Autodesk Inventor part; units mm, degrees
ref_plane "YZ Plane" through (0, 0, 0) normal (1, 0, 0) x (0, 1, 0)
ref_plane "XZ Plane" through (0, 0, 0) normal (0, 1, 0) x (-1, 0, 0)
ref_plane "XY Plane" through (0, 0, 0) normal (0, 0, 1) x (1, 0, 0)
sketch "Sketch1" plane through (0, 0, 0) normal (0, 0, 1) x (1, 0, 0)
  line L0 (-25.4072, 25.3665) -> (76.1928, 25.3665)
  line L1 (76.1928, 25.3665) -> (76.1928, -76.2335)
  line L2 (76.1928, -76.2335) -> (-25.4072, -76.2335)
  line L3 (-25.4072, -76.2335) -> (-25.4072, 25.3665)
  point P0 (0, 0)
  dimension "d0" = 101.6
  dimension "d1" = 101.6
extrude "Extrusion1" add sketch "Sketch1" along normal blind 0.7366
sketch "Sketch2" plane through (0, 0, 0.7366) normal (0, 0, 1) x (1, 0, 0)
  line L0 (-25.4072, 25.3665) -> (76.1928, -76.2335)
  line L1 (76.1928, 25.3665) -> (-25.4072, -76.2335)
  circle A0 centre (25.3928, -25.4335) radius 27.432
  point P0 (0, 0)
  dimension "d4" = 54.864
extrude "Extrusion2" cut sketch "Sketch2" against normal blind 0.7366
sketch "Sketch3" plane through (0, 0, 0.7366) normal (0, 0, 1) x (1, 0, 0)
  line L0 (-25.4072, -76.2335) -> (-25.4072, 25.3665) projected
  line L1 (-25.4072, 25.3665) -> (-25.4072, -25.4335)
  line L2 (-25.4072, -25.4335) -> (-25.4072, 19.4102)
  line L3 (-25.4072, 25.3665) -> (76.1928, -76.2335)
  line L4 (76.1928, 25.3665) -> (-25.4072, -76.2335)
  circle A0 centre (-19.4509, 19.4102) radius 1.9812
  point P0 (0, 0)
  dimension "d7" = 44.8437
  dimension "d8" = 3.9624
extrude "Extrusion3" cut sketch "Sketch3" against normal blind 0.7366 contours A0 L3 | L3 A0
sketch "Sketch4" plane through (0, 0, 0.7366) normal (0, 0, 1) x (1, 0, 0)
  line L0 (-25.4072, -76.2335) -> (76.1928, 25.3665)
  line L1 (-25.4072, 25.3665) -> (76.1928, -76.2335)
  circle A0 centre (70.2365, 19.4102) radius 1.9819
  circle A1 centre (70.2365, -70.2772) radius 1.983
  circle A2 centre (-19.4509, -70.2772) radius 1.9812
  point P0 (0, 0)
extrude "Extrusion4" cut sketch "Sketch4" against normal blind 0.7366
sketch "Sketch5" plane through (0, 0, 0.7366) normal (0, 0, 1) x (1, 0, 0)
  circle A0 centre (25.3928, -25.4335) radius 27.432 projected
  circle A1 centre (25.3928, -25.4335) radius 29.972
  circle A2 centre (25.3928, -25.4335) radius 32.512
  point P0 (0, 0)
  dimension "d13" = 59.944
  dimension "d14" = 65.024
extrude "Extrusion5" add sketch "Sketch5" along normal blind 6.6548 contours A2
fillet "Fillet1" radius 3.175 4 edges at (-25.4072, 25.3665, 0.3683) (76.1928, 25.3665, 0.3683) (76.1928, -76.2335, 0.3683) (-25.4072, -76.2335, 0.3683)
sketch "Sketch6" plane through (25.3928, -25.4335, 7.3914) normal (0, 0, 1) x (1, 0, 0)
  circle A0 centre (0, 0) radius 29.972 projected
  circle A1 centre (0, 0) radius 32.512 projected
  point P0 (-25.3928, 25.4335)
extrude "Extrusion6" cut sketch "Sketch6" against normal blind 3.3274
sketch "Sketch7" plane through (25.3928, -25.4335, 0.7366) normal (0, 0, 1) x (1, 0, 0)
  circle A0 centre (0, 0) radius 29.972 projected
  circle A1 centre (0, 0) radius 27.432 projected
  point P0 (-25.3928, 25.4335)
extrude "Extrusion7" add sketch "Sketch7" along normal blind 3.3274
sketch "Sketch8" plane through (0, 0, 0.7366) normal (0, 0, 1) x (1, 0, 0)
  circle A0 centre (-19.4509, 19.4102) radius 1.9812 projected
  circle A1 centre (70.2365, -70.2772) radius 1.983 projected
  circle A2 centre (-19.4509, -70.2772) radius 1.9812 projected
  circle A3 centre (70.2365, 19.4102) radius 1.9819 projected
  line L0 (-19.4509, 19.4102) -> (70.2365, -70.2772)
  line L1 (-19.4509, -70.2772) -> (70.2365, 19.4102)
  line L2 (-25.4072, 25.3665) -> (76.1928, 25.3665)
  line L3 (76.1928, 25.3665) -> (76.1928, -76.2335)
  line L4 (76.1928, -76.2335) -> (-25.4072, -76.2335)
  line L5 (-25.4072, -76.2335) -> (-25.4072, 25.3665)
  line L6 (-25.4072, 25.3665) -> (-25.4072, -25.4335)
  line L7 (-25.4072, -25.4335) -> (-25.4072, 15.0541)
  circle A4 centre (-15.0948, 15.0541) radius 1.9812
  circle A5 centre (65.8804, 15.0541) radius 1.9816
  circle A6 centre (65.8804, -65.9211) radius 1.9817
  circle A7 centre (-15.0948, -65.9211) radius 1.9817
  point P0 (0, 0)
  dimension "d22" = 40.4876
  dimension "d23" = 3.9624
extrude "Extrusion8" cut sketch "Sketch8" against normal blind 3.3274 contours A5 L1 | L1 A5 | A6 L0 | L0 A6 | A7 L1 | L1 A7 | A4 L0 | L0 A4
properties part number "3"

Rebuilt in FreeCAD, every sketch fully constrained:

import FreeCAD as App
import Part
import Sketcher
Q = App.Units.Quantity


def edges_at(feature, points):
    """Names of the edges that pass closest to the given points."""
    edges = feature.Shape.Edges
    near = lambda p: min(range(len(edges)), key=lambda i: edges[i].distToShape(Part.Vertex(*p))[0])
    return sorted({f"Edge{near(p) + 1}" for p in points})


def add_polygon(sketch, points):
    """Adds a closed chain of lines whose ends are joined by coincident constraints."""
    first, n = sketch.GeometryCount, len(points)
    for a, b in zip(points, points[1:] + points[:1]):
        sketch.addGeometry(Part.LineSegment(App.Vector(*a, 0), App.Vector(*b, 0)), False)
    for i in range(n):
        sketch.addConstraint(Sketcher.Constraint("Coincident", first + i, 2, first + (i + 1) % n, 1))

doc = App.newDocument("Part")
body = doc.addObject("PartDesign::Body", "Body")

sketch1 = body.newObject("Sketcher::SketchObject", "Sketch")
sketch1.AttachmentSupport = (doc.getObject("XY_Plane"), [""])
sketch1.MapMode = "FlatFace"
add_polygon(sketch1, [(76, 25), (-25, 25), (-25, -76), (76, -76)])
sketch1.addConstraint(Sketcher.Constraint("Horizontal", 0))
sketch1.addConstraint(Sketcher.Constraint("Vertical", 1))
sketch1.addConstraint(Sketcher.Constraint("Horizontal", 2))
sketch1.addConstraint(Sketcher.Constraint("Vertical", 3))
sketch1.addConstraint(Sketcher.Constraint("Equal", 2, 1))
sketch1.addConstraint(Sketcher.Constraint("DistanceX", 0, 2, 0, 1, Q("4 in")))
sketch1.addConstraint(Sketcher.Constraint("DistanceX", 0, 2, -1, 1, Q("25.4072 mm")))
sketch1.addConstraint(Sketcher.Constraint("DistanceY", -1, 1, 0, 2, Q("25.3665 mm")))
pad1 = body.newObject("PartDesign::Pad", "Pad")
pad1.Profile = sketch1
pad1.Length = Q("0.029 in")

sketch2 = body.newObject("Sketcher::SketchObject", "Sketch001")
sketch2.AttachmentSupport = (doc.getObject("XY_Plane"), [""])
sketch2.MapMode = "FlatFace"
sketch2.AttachmentOffset = App.Placement(App.Vector(0, 0, 0.029 * 25.4), App.Rotation())
sketch2.addGeometry(Part.Circle(App.Vector(25, -25, 0), App.Vector(0, 0, 1), 27), False)
sketch2.addConstraint(Sketcher.Constraint("Diameter", 0, Q("2.16 in")))
sketch2.addConstraint(Sketcher.Constraint("DistanceX", -1, 1, 0, 3, Q("25.3928 mm")))
sketch2.addConstraint(Sketcher.Constraint("DistanceY", 0, 3, -1, 1, Q("25.4335 mm")))
pocket1 = body.newObject("PartDesign::Pocket", "Pocket")
pocket1.Profile = sketch2
pocket1.Length = Q("0.029 in")

sketch3 = body.newObject("Sketcher::SketchObject", "Sketch002")
sketch3.AttachmentSupport = (doc.getObject("XY_Plane"), [""])
sketch3.MapMode = "FlatFace"
sketch3.AttachmentOffset = App.Placement(App.Vector(0, 0, 0.029 * 25.4), App.Rotation())
sketch3.addGeometry(Part.Circle(App.Vector(-19.5, 19.4, 0), App.Vector(0, 0, 1), 2), False)
sketch3.addConstraint(Sketcher.Constraint("Diameter", 0, Q("0.156 in")))
sketch3.addConstraint(Sketcher.Constraint("DistanceX", 0, 3, -1, 1, Q("19.451 mm")))
sketch3.addConstraint(Sketcher.Constraint("DistanceY", -1, 1, 0, 3, Q("19.4102 mm")))
pocket2 = body.newObject("PartDesign::Pocket", "Pocket001")
pocket2.Profile = sketch3
pocket2.Length = Q("0.029 in")

sketch4 = body.newObject("Sketcher::SketchObject", "Sketch003")
sketch4.AttachmentSupport = (doc.getObject("XY_Plane"), [""])
sketch4.MapMode = "FlatFace"
sketch4.AttachmentOffset = App.Placement(App.Vector(0, 0, 0.029 * 25.4), App.Rotation())
sketch4.addGeometry(Part.Circle(App.Vector(-19.5, -70.3, 0), App.Vector(0, 0, 1), 2), False)
sketch4.addGeometry(Part.Circle(App.Vector(70.2, 19.4, 0), App.Vector(0, 0, 1), 2), False)
sketch4.addGeometry(Part.Circle(App.Vector(70.2, -70.3, 0), App.Vector(0, 0, 1), 2), False)
sketch4.addConstraint(Sketcher.Constraint("Horizontal", 0, 3, 2, 3))
sketch4.addConstraint(Sketcher.Constraint("Vertical", 1, 3, 2, 3))
sketch4.addConstraint(Sketcher.Constraint("Diameter", 0, Q("0.156 in")))
sketch4.addConstraint(Sketcher.Constraint("Diameter", 1, Q("3.9638 mm")))
sketch4.addConstraint(Sketcher.Constraint("Diameter", 2, Q("3.966 mm")))
sketch4.addConstraint(Sketcher.Constraint("DistanceX", 0, 3, 1, 3, Q("3.531 in")))
sketch4.addConstraint(Sketcher.Constraint("DistanceY", 0, 3, 1, 3, Q("3.531 in")))
sketch4.addConstraint(Sketcher.Constraint("DistanceX", 0, 3, -1, 1, Q("19.451 mm")))
sketch4.addConstraint(Sketcher.Constraint("DistanceY", 0, 3, -1, 1, Q("70.2772 mm")))
pocket3 = body.newObject("PartDesign::Pocket", "Pocket002")
pocket3.Profile = sketch4
pocket3.Length = Q("0.029 in")

sketch5 = body.newObject("Sketcher::SketchObject", "Sketch004")
sketch5.AttachmentSupport = (doc.getObject("XY_Plane"), [""])
sketch5.MapMode = "FlatFace"
sketch5.AttachmentOffset = App.Placement(App.Vector(0, 0, 0.029 * 25.4), App.Rotation())
sketch5.addGeometry(Part.Circle(App.Vector(25, -25, 0), App.Vector(0, 0, 1), 33), False)
sketch5.addGeometry(Part.Circle(App.Vector(25, -25, 0), App.Vector(0, 0, 1), 30), False)
sketch5.addConstraint(Sketcher.Constraint("Coincident", 1, 3, 0, 3))
sketch5.addConstraint(Sketcher.Constraint("Diameter", 0, Q("2.56 in")))
sketch5.addConstraint(Sketcher.Constraint("Diameter", 1, Q("2.36 in")))
sketch5.addConstraint(Sketcher.Constraint("DistanceX", -1, 1, 0, 3, Q("25.3928 mm")))
sketch5.addConstraint(Sketcher.Constraint("DistanceY", 0, 3, -1, 1, Q("25.4335 mm")))
pad2 = body.newObject("PartDesign::Pad", "Pad001")
pad2.Profile = sketch5
pad2.Length = Q("0.262 in")
doc.recompute()

fillet = body.newObject("PartDesign::Fillet", "Fillet")
fillet.Base = (pad2, edges_at(pad2, [
    (-25.407, 25.366, 0.368),
    (76.193, 25.366, 0.368),
    (76.193, -76.234, 0.368),
    (-25.407, -76.234, 0.368),
]))
fillet.Radius = Q("0.125 in")

sketch6 = body.newObject("Sketcher::SketchObject", "Sketch005")
sketch6.AttachmentSupport = (doc.getObject("XY_Plane"), [""])
sketch6.MapMode = "FlatFace"
sketch6.AttachmentOffset = App.Placement(App.Vector(0, 0, 0.291 * 25.4), App.Rotation())
sketch6.addGeometry(Part.Circle(App.Vector(25, -25, 0), App.Vector(0, 0, 1), 33), False)
sketch6.addGeometry(Part.Circle(App.Vector(25, -25, 0), App.Vector(0, 0, 1), 30), False)
sketch6.addConstraint(Sketcher.Constraint("Coincident", 1, 3, 0, 3))
sketch6.addConstraint(Sketcher.Constraint("Diameter", 0, Q("2.56 in")))
sketch6.addConstraint(Sketcher.Constraint("Diameter", 1, Q("2.36 in")))
sketch6.addConstraint(Sketcher.Constraint("DistanceX", -1, 1, 0, 3, Q("25.3928 mm")))
sketch6.addConstraint(Sketcher.Constraint("DistanceY", 0, 3, -1, 1, Q("25.4335 mm")))
pocket4 = body.newObject("PartDesign::Pocket", "Pocket003")
pocket4.Profile = sketch6
pocket4.Length = Q("0.131 in")

sketch7 = body.newObject("Sketcher::SketchObject", "Sketch006")
sketch7.AttachmentSupport = (doc.getObject("XY_Plane"), [""])
sketch7.MapMode = "FlatFace"
sketch7.AttachmentOffset = App.Placement(App.Vector(0, 0, 0.029 * 25.4), App.Rotation())
sketch7.addGeometry(Part.Circle(App.Vector(25, -25, 0), App.Vector(0, 0, 1), 30), False)
sketch7.addGeometry(Part.Circle(App.Vector(25, -25, 0), App.Vector(0, 0, 1), 27), False)
sketch7.addConstraint(Sketcher.Constraint("Coincident", 1, 3, 0, 3))
sketch7.addConstraint(Sketcher.Constraint("Diameter", 0, Q("2.36 in")))
sketch7.addConstraint(Sketcher.Constraint("Diameter", 1, Q("2.16 in")))
sketch7.addConstraint(Sketcher.Constraint("DistanceX", -1, 1, 0, 3, Q("25.3928 mm")))
sketch7.addConstraint(Sketcher.Constraint("DistanceY", 0, 3, -1, 1, Q("25.4335 mm")))
pad3 = body.newObject("PartDesign::Pad", "Pad002")
pad3.Profile = sketch7
pad3.Length = Q("0.131 in")

sketch8 = body.newObject("Sketcher::SketchObject", "Sketch007")
sketch8.AttachmentSupport = (doc.getObject("XY_Plane"), [""])
sketch8.MapMode = "FlatFace"
sketch8.AttachmentOffset = App.Placement(App.Vector(0, 0, 0.029 * 25.4), App.Rotation())
sketch8.addGeometry(Part.Circle(App.Vector(65.9, 15.1, 0), App.Vector(0, 0, 1), 2), False)
sketch8.addGeometry(Part.Circle(App.Vector(65.9, -65.9, 0), App.Vector(0, 0, 1), 2), False)
sketch8.addGeometry(Part.Circle(App.Vector(-15.1, -65.9, 0), App.Vector(0, 0, 1), 2), False)
sketch8.addGeometry(Part.Circle(App.Vector(-15.1, 15.1, 0), App.Vector(0, 0, 1), 2), False)
sketch8.addConstraint(Sketcher.Constraint("Equal", 0, 1))
sketch8.addConstraint(Sketcher.Constraint("Equal", 1, 2))
sketch8.addConstraint(Sketcher.Constraint("Horizontal", 1, 3, 2, 3))
sketch8.addConstraint(Sketcher.Constraint("Horizontal", 0, 3, 3, 3))
sketch8.addConstraint(Sketcher.Constraint("Vertical", 0, 3, 1, 3))
sketch8.addConstraint(Sketcher.Constraint("Vertical", 2, 3, 3, 3))
sketch8.addConstraint(Sketcher.Constraint("Diameter", 3, Q("0.156 in")))
sketch8.addConstraint(Sketcher.Constraint("Diameter", 0, Q("3.9632 mm")))
sketch8.addConstraint(Sketcher.Constraint("DistanceY", 1, 3, 0, 3, Q("3.188 in")))
sketch8.addConstraint(Sketcher.Constraint("DistanceX", 2, 3, 1, 3, Q("3.188 in")))
sketch8.addConstraint(Sketcher.Constraint("DistanceX", -1, 1, 0, 3, Q("65.8804 mm")))
sketch8.addConstraint(Sketcher.Constraint("DistanceY", -1, 1, 0, 3, Q("15.054 mm")))
pocket5 = body.newObject("PartDesign::Pocket", "Pocket004")
pocket5.Profile = sketch8
pocket5.Length = Q("0.131 in")

doc.recompute()
